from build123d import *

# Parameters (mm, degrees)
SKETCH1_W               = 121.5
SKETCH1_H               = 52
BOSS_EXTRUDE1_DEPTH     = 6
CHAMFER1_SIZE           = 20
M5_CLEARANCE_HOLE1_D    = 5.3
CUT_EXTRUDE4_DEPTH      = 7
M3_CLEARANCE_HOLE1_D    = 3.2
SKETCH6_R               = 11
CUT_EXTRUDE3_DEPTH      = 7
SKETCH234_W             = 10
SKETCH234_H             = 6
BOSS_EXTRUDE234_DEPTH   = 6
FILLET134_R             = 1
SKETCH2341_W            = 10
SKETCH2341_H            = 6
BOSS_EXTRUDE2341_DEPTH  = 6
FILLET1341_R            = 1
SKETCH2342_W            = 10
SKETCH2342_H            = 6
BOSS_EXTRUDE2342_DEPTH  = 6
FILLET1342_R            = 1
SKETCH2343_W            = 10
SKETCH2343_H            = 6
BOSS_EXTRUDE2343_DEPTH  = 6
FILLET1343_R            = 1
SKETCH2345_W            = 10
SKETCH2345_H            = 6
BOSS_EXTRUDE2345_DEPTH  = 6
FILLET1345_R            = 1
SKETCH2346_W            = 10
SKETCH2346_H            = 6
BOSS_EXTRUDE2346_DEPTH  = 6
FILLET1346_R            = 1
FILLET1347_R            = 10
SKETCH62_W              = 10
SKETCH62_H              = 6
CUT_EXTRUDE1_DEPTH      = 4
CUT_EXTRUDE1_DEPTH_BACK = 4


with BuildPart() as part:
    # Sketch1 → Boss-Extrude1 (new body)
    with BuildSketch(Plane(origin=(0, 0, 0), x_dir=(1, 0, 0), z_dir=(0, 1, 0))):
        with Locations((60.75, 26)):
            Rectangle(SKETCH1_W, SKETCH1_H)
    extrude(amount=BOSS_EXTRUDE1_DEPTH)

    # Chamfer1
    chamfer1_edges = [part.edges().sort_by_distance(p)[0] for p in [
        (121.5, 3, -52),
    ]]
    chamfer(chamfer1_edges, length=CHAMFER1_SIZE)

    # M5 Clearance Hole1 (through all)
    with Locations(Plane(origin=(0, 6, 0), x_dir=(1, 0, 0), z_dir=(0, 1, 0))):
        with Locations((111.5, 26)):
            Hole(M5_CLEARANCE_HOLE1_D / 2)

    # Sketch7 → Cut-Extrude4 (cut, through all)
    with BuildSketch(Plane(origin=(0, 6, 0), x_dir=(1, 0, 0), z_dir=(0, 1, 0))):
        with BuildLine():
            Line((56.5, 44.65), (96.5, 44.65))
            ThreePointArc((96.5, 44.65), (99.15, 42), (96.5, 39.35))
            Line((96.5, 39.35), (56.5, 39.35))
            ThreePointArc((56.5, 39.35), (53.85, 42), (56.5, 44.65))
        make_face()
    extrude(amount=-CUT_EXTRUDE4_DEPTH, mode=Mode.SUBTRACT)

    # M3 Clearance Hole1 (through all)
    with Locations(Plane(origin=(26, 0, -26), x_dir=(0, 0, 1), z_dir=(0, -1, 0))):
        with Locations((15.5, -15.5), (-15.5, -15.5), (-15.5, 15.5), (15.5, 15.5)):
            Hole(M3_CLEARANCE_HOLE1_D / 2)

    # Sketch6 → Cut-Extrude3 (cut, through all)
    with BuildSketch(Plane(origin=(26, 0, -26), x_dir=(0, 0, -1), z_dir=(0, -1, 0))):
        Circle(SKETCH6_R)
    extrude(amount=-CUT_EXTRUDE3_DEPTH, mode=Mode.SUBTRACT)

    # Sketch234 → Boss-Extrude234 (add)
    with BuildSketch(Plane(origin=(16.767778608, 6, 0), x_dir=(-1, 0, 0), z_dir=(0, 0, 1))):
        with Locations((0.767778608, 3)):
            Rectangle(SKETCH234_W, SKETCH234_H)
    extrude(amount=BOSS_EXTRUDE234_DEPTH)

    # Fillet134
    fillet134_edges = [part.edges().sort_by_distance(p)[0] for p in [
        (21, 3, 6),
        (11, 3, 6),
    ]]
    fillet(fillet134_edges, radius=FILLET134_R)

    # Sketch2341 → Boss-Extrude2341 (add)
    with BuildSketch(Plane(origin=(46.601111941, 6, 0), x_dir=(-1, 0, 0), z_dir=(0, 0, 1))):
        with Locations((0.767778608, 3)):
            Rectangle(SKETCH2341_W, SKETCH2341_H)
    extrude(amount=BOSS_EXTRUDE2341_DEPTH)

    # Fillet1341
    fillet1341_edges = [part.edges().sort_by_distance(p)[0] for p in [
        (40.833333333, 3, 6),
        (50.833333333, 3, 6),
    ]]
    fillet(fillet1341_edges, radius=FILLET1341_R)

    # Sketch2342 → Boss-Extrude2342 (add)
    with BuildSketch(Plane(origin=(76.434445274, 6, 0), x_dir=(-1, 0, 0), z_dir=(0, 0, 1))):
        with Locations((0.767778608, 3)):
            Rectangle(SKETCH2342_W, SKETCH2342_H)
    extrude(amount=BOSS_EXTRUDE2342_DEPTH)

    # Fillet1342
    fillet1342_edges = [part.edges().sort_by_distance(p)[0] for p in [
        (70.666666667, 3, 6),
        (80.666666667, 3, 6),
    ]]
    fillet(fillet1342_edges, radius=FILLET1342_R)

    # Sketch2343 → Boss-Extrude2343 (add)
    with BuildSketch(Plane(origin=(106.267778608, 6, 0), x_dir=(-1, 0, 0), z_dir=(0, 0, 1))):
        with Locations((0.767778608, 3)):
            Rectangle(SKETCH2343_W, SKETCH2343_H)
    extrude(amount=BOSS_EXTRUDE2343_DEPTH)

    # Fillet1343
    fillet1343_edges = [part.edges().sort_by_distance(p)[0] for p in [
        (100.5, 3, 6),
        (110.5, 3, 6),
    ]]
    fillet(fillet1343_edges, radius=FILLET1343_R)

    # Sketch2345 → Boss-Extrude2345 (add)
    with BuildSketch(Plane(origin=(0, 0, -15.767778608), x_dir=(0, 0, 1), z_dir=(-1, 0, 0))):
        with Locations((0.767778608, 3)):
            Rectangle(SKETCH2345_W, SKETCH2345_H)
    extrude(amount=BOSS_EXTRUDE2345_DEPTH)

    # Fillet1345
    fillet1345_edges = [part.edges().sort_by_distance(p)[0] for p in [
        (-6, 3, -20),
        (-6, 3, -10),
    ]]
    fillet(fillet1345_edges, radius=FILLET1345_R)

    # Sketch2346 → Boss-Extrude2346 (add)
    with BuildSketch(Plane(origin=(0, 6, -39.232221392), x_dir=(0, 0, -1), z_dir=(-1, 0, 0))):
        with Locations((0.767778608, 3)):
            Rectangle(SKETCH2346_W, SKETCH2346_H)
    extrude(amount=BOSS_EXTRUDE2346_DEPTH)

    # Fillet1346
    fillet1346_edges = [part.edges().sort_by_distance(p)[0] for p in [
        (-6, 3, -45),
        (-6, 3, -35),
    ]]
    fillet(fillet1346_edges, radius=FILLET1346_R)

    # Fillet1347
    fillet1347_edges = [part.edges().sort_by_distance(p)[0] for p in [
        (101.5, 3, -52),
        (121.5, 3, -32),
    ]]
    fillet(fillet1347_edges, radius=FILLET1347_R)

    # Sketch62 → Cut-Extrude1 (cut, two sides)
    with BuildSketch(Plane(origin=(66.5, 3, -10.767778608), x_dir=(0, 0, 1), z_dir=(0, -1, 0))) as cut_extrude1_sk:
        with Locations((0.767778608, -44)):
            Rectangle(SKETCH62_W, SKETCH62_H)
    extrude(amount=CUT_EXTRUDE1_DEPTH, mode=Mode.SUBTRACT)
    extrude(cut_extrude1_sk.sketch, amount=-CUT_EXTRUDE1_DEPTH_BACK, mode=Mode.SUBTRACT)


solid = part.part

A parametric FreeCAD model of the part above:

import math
import FreeCAD as App
import Part
import Sketcher


def edges_at(feature, points):
    """Names of the edges that pass closest to the given points."""
    edges = feature.Shape.Edges
    near = lambda p: min(range(len(edges)), key=lambda i: edges[i].distToShape(Part.Vertex(*p))[0])
    return sorted({f"Edge{near(p) + 1}" for p in points})

doc = App.newDocument("Part")
body = doc.addObject("PartDesign::Body", "Body")

# Sketch on XZ plane
sketch1 = body.newObject("Sketcher::SketchObject", "Sketch")
sketch1.AttachmentSupport = (doc.getObject("XZ_Plane"), [""])
sketch1.MapMode = "FlatFace"
sketch1.addGeometry(Part.LineSegment(App.Vector(0, -52, 0), App.Vector(0, 0, 0)), False)
sketch1.addGeometry(Part.LineSegment(App.Vector(0, 0, 0), App.Vector(121.5, 0, 0)), False)
sketch1.addGeometry(Part.LineSegment(App.Vector(121.5, 0, 0), App.Vector(121.5, -52, 0)), False)
sketch1.addGeometry(Part.LineSegment(App.Vector(121.5, -52, 0), App.Vector(0, -52, 0)), False)
sketch1.addConstraint(Sketcher.Constraint("Coincident", 0, 2, 1, 1))
sketch1.addConstraint(Sketcher.Constraint("Coincident", 1, 2, 2, 1))
sketch1.addConstraint(Sketcher.Constraint("Coincident", 2, 2, 3, 1))
sketch1.addConstraint(Sketcher.Constraint("Coincident", 3, 2, 0, 1))
sketch1.addConstraint(Sketcher.Constraint("Vertical", 0))
sketch1.addConstraint(Sketcher.Constraint("Horizontal", 1))
sketch1.addConstraint(Sketcher.Constraint("Vertical", 2))
sketch1.addConstraint(Sketcher.Constraint("Horizontal", 3))
sketch1.addConstraint(Sketcher.Constraint("Coincident", 0, 2, -1, 1))
sketch1.addConstraint(Sketcher.Constraint("DistanceY", 0, 1, 0, 2, 52.0))
sketch1.addConstraint(Sketcher.Constraint("DistanceX", 1, 1, 1, 2, 121.5))
pad1 = body.newObject("PartDesign::Pad", "Pad")
pad1.Profile = sketch1
pad1.Length = 6
pad1.Reversed = True
doc.recompute()

chamfer = body.newObject("PartDesign::Chamfer", "Chamfer")
chamfer.Base = (pad1, edges_at(pad1, [(121.5, 3, -52)]))
chamfer.Size = 20

# Sketch on XZ plane
sketch2 = body.newObject("Sketcher::SketchObject", "Sketch001")
sketch2.AttachmentSupport = (doc.getObject("XZ_Plane"), [""])
sketch2.MapMode = "FlatFace"
sketch2.AttachmentOffset = App.Placement(App.Vector(0, 0, -6), App.Rotation())
sketch2.addGeometry(Part.Circle(App.Vector(111.5, -26, 0), App.Vector(0, 0, 1), 2.65), False)
sketch2.addConstraint(Sketcher.Constraint("Diameter", 0, 5.3))
sketch2.addConstraint(Sketcher.Constraint("DistanceY", 0, 3, -1, 1, 26.0))
sketch2.addConstraint(Sketcher.Constraint("DistanceX", -1, 1, 0, 3, 111.5))
doc.recompute()
hole = body.newObject("PartDesign::Hole", "Hole")
hole.Profile = sketch2
hole.ThreadType = "None"
hole.Diameter = 5.3
hole.DepthType = "ThroughAll"
hole.Reversed = True

# Sketch on XZ plane
sketch3 = body.newObject("Sketcher::SketchObject", "Sketch002")
sketch3.AttachmentSupport = (doc.getObject("XZ_Plane"), [""])
sketch3.MapMode = "FlatFace"
sketch3.AttachmentOffset = App.Placement(App.Vector(0, 0, -6), App.Rotation())
sketch3.addGeometry(Part.LineSegment(App.Vector(96.5, -44.65, 0), App.Vector(56.5, -44.65, 0)), False)
sketch3.addGeometry(Part.ArcOfCircle(Part.Circle(App.Vector(56.5, -42, 0), App.Vector(0, 0, 1), 2.65), math.radians(90), math.radians(270)), False)
sketch3.addGeometry(Part.LineSegment(App.Vector(56.5, -39.35, 0), App.Vector(96.5, -39.35, 0)), False)
sketch3.addGeometry(Part.ArcOfCircle(Part.Circle(App.Vector(96.5, -42, 0), App.Vector(0, 0, 1), 2.65), math.radians(-90), math.radians(90)), False)
sketch3.addConstraint(Sketcher.Constraint("Tangent", 0, 2, 1, 2))
sketch3.addConstraint(Sketcher.Constraint("Tangent", 1, 1, 2, 1))
sketch3.addConstraint(Sketcher.Constraint("Tangent", 2, 2, 3, 2))
sketch3.addConstraint(Sketcher.Constraint("Tangent", 3, 1, 0, 1))
sketch3.addConstraint(Sketcher.Constraint("Horizontal", 0))
sketch3.addConstraint(Sketcher.Constraint("Horizontal", 2))
sketch3.addConstraint(Sketcher.Constraint("DistanceX", 0, 2, 0, 1, 40.0))
sketch3.addConstraint(Sketcher.Constraint("Radius", 1, 2.65))
sketch3.addConstraint(Sketcher.Constraint("DistanceY", 1, 3, -1, 1, 42.0))
sketch3.addConstraint(Sketcher.Constraint("DistanceX", -1, 1, 1, 3, 56.5))
pocket1 = body.newObject("PartDesign::Pocket", "Pocket")
pocket1.Profile = sketch3
pocket1.Type = "ThroughAll"
pocket1.Reversed = True

# Sketch on XZ plane
sketch4 = body.newObject("Sketcher::SketchObject", "Sketch003")
sketch4.AttachmentSupport = (doc.getObject("XZ_Plane"), [""])
sketch4.MapMode = "FlatFace"
sketch4.addGeometry(Part.Circle(App.Vector(41.5, -10.5, 0), App.Vector(0, 0, 1), 1.6), False)
sketch4.addGeometry(Part.Circle(App.Vector(41.5, -41.5, 0), App.Vector(0, 0, 1), 1.6), False)
sketch4.addGeometry(Part.Circle(App.Vector(10.5, -41.5, 0), App.Vector(0, 0, 1), 1.6), False)
sketch4.addGeometry(Part.Circle(App.Vector(10.5, -10.5, 0), App.Vector(0, 0, 1), 1.6), False)
sketch4.addConstraint(Sketcher.Constraint("Equal", 0, 1))
sketch4.addConstraint(Sketcher.Constraint("Equal", 1, 2))
sketch4.addConstraint(Sketcher.Constraint("Equal", 2, 3))
sketch4.addConstraint(Sketcher.Constraint("Horizontal", 1, 3, 2, 3))
sketch4.addConstraint(Sketcher.Constraint("Horizontal", 0, 3, 3, 3))
sketch4.addConstraint(Sketcher.Constraint("Vertical", 0, 3, 1, 3))
sketch4.addConstraint(Sketcher.Constraint("Vertical", 2, 3, 3, 3))
sketch4.addConstraint(Sketcher.Constraint("Diameter", 0, 3.2))
sketch4.addConstraint(Sketcher.Constraint("DistanceY", 1, 3, 0, 3, 31.0))
sketch4.addConstraint(Sketcher.Constraint("DistanceX", 2, 3, 1, 3, 31.0))
sketch4.addConstraint(Sketcher.Constraint("DistanceX", -1, 1, 0, 3, 41.5))
sketch4.addConstraint(Sketcher.Constraint("DistanceY", 0, 3, -1, 1, 10.5))
doc.recompute()
hole2 = body.newObject("PartDesign::Hole", "Hole001")
hole2.Profile = sketch4
hole2.ThreadType = "None"
hole2.Diameter = 3.2
hole2.DepthType = "ThroughAll"

# Sketch on XZ plane
sketch5 = body.newObject("Sketcher::SketchObject", "Sketch004")
sketch5.AttachmentSupport = (doc.getObject("XZ_Plane"), [""])
sketch5.MapMode = "FlatFace"
sketch5.addGeometry(Part.Circle(App.Vector(26, -26, 0), App.Vector(0, 0, 1), 11), False)
sketch5.addConstraint(Sketcher.Constraint("Diameter", 0, 22.0))
sketch5.addConstraint(Sketcher.Constraint("DistanceX", -1, 1, 0, 3, 26.0))
sketch5.addConstraint(Sketcher.Constraint("DistanceY", 0, 3, -1, 1, 26.0))
pocket2 = body.newObject("PartDesign::Pocket", "Pocket001")
pocket2.Profile = sketch5
pocket2.Type = "ThroughAll"

# Sketch on XY plane
sketch6 = body.newObject("Sketcher::SketchObject", "Sketch005")
sketch6.AttachmentSupport = (doc.getObject("XY_Plane"), [""])
sketch6.MapMode = "FlatFace"
sketch6.addGeometry(Part.LineSegment(App.Vector(21, 0, 0), App.Vector(21, 6, 0)), False)
sketch6.addGeometry(Part.LineSegment(App.Vector(21, 6, 0), App.Vector(11, 6, 0)), False)
sketch6.addGeometry(Part.LineSegment(App.Vector(11, 6, 0), App.Vector(11, 0, 0)), False)
sketch6.addGeometry(Part.LineSegment(App.Vector(11, 0, 0), App.Vector(21, 0, 0)), False)
sketch6.addConstraint(Sketcher.Constraint("Coincident", 0, 2, 1, 1))
sketch6.addConstraint(Sketcher.Constraint("Coincident", 1, 2, 2, 1))
sketch6.addConstraint(Sketcher.Constraint("Coincident", 2, 2, 3, 1))
sketch6.addConstraint(Sketcher.Constraint("Coincident", 3, 2, 0, 1))
sketch6.addConstraint(Sketcher.Constraint("Vertical", 0))
sketch6.addConstraint(Sketcher.Constraint("Horizontal", 1))
sketch6.addConstraint(Sketcher.Constraint("Vertical", 2))
sketch6.addConstraint(Sketcher.Constraint("Horizontal", 3))
sketch6.addConstraint(Sketcher.Constraint("PointOnObject", 2, 2, -1))
sketch6.addConstraint(Sketcher.Constraint("DistanceX", 1, 2, 1, 1, 10.0))
sketch6.addConstraint(Sketcher.Constraint("DistanceY", 0, 1, 0, 2, 6.0))
sketch6.addConstraint(Sketcher.Constraint("DistanceX", -1, 1, 0, 2, 21.0))
pad2 = body.newObject("PartDesign::Pad", "Pad001")
pad2.Profile = sketch6
pad2.Length = 6
doc.recompute()

fillet = body.newObject("PartDesign::Fillet", "Fillet")
fillet.Base = (pad2, edges_at(pad2, [(21, 3, 6), (11, 3, 6)]))
fillet.Radius = 1

# Sketch on XY plane
sketch7 = body.newObject("Sketcher::SketchObject", "Sketch006")
sketch7.AttachmentSupport = (doc.getObject("XY_Plane"), [""])
sketch7.MapMode = "FlatFace"
sketch7.addGeometry(Part.LineSegment(App.Vector(50.833333, 0, 0), App.Vector(50.833333, 6, 0)), False)
sketch7.addGeometry(Part.LineSegment(App.Vector(50.833333, 6, 0), App.Vector(40.833333, 6, 0)), False)
sketch7.addGeometry(Part.LineSegment(App.Vector(40.833333, 6, 0), App.Vector(40.833333, 0, 0)), False)
sketch7.addGeometry(Part.LineSegment(App.Vector(40.833333, 0, 0), App.Vector(50.833333, 0, 0)), False)
sketch7.addConstraint(Sketcher.Constraint("Coincident", 0, 2, 1, 1))
sketch7.addConstraint(Sketcher.Constraint("Coincident", 1, 2, 2, 1))
sketch7.addConstraint(Sketcher.Constraint("Coincident", 2, 2, 3, 1))
sketch7.addConstraint(Sketcher.Constraint("Coincident", 3, 2, 0, 1))
sketch7.addConstraint(Sketcher.Constraint("Vertical", 0))
sketch7.addConstraint(Sketcher.Constraint("Horizontal", 1))
sketch7.addConstraint(Sketcher.Constraint("Vertical", 2))
sketch7.addConstraint(Sketcher.Constraint("Horizontal", 3))
sketch7.addConstraint(Sketcher.Constraint("PointOnObject", 2, 2, -1))
sketch7.addConstraint(Sketcher.Constraint("DistanceX", 1, 2, 1, 1, 10.0))
sketch7.addConstraint(Sketcher.Constraint("DistanceY", 0, 1, 0, 2, 6.0))
sketch7.addConstraint(Sketcher.Constraint("DistanceX", -1, 1, 0, 2, 50.833333))
pad3 = body.newObject("PartDesign::Pad", "Pad002")
pad3.Profile = sketch7
pad3.Length = 6
doc.recompute()

fillet2 = body.newObject("PartDesign::Fillet", "Fillet001")
fillet2.Base = (pad3, edges_at(pad3, [(40.833, 3, 6), (50.833, 3, 6)]))
fillet2.Radius = 1

# Sketch on XY plane
sketch8 = body.newObject("Sketcher::SketchObject", "Sketch007")
sketch8.AttachmentSupport = (doc.getObject("XY_Plane"), [""])
sketch8.MapMode = "FlatFace"
sketch8.addGeometry(Part.LineSegment(App.Vector(80.666667, 0, 0), App.Vector(80.666667, 6, 0)), False)
sketch8.addGeometry(Part.LineSegment(App.Vector(80.666667, 6, 0), App.Vector(70.666667, 6, 0)), False)
sketch8.addGeometry(Part.LineSegment(App.Vector(70.666667, 6, 0), App.Vector(70.666667, 0, 0)), False)
sketch8.addGeometry(Part.LineSegment(App.Vector(70.666667, 0, 0), App.Vector(80.666667, 0, 0)), False)
sketch8.addConstraint(Sketcher.Constraint("Coincident", 0, 2, 1, 1))
sketch8.addConstraint(Sketcher.Constraint("Coincident", 1, 2, 2, 1))
sketch8.addConstraint(Sketcher.Constraint("Coincident", 2, 2, 3, 1))
sketch8.addConstraint(Sketcher.Constraint("Coincident", 3, 2, 0, 1))
sketch8.addConstraint(Sketcher.Constraint("Vertical", 0))
sketch8.addConstraint(Sketcher.Constraint("Horizontal", 1))
sketch8.addConstraint(Sketcher.Constraint("Vertical", 2))
sketch8.addConstraint(Sketcher.Constraint("Horizontal", 3))
sketch8.addConstraint(Sketcher.Constraint("PointOnObject", 2, 2, -1))
sketch8.addConstraint(Sketcher.Constraint("DistanceX", 1, 2, 1, 1, 10.0))
sketch8.addConstraint(Sketcher.Constraint("DistanceY", 0, 1, 0, 2, 6.0))
sketch8.addConstraint(Sketcher.Constraint("DistanceX", -1, 1, 0, 2, 80.666667))
pad4 = body.newObject("PartDesign::Pad", "Pad003")
pad4.Profile = sketch8
pad4.Length = 6
doc.recompute()

fillet3 = body.newObject("PartDesign::Fillet", "Fillet002")
fillet3.Base = (pad4, edges_at(pad4, [(70.667, 3, 6), (80.667, 3, 6)]))
fillet3.Radius = 1

# Sketch on XY plane
sketch9 = body.newObject("Sketcher::SketchObject", "Sketch008")
sketch9.AttachmentSupport = (doc.getObject("XY_Plane"), [""])
sketch9.MapMode = "FlatFace"
sketch9.addGeometry(Part.LineSegment(App.Vector(110.5, 0, 0), App.Vector(110.5, 6, 0)), False)
sketch9.addGeometry(Part.LineSegment(App.Vector(110.5, 6, 0), App.Vector(100.5, 6, 0)), False)
sketch9.addGeometry(Part.LineSegment(App.Vector(100.5, 6, 0), App.Vector(100.5, 0, 0)), False)
sketch9.addGeometry(Part.LineSegment(App.Vector(100.5, 0, 0), App.Vector(110.5, 0, 0)), False)
sketch9.addConstraint(Sketcher.Constraint("Coincident", 0, 2, 1, 1))
sketch9.addConstraint(Sketcher.Constraint("Coincident", 1, 2, 2, 1))
sketch9.addConstraint(Sketcher.Constraint("Coincident", 2, 2, 3, 1))
sketch9.addConstraint(Sketcher.Constraint("Coincident", 3, 2, 0, 1))
sketch9.addConstraint(Sketcher.Constraint("Vertical", 0))
sketch9.addConstraint(Sketcher.Constraint("Horizontal", 1))
sketch9.addConstraint(Sketcher.Constraint("Vertical", 2))
sketch9.addConstraint(Sketcher.Constraint("Horizontal", 3))
sketch9.addConstraint(Sketcher.Constraint("PointOnObject", 2, 2, -1))
sketch9.addConstraint(Sketcher.Constraint("DistanceX", 1, 2, 1, 1, 10.0))
sketch9.addConstraint(Sketcher.Constraint("DistanceY", 0, 1, 0, 2, 6.0))
sketch9.addConstraint(Sketcher.Constraint("DistanceX", -1, 1, 0, 2, 110.5))
pad5 = body.newObject("PartDesign::Pad", "Pad004")
pad5.Profile = sketch9
pad5.Length = 6
doc.recompute()

fillet4 = body.newObject("PartDesign::Fillet", "Fillet003")
fillet4.Base = (pad5, edges_at(pad5, [(100.5, 3, 6), (110.5, 3, 6)]))
fillet4.Radius = 1

# Sketch on YZ plane
sketch10 = body.newObject("Sketcher::SketchObject", "Sketch009")
sketch10.AttachmentSupport = (doc.getObject("YZ_Plane"), [""])
sketch10.MapMode = "FlatFace"
sketch10.addGeometry(Part.LineSegment(App.Vector(6, -20, 0), App.Vector(0, -20, 0)), False)
sketch10.addGeometry(Part.LineSegment(App.Vector(0, -20, 0), App.Vector(0, -10, 0)), False)
sketch10.addGeometry(Part.LineSegment(App.Vector(0, -10, 0), App.Vector(6, -10, 0)), False)
sketch10.addGeometry(Part.LineSegment(App.Vector(6, -10, 0), App.Vector(6, -20, 0)), False)
sketch10.addConstraint(Sketcher.Constraint("Coincident", 0, 2, 1, 1))
sketch10.addConstraint(Sketcher.Constraint("Coincident", 1, 2, 2, 1))
sketch10.addConstraint(Sketcher.Constraint("Coincident", 2, 2, 3, 1))
sketch10.addConstraint(Sketcher.Constraint("Coincident", 3, 2, 0, 1))
sketch10.addConstraint(Sketcher.Constraint("Horizontal", 0))
sketch10.addConstraint(Sketcher.Constraint("Vertical", 1))
sketch10.addConstraint(Sketcher.Constraint("Horizontal", 2))
sketch10.addConstraint(Sketcher.Constraint("Vertical", 3))
sketch10.addConstraint(Sketcher.Constraint("PointOnObject", 0, 2, -2))
sketch10.addConstraint(Sketcher.Constraint("DistanceX", 0, 2, 0, 1, 6.0))
sketch10.addConstraint(Sketcher.Constraint("DistanceY", 1, 1, 1, 2, 10.0))
sketch10.addConstraint(Sketcher.Constraint("DistanceY", 0, 2, -1, 1, 20.0))
pad6 = body.newObject("PartDesign::Pad", "Pad005")
pad6.Profile = sketch10
pad6.Length = 6
pad6.Reversed = True
doc.recompute()

fillet5 = body.newObject("PartDesign::Fillet", "Fillet004")
fillet5.Base = (pad6, edges_at(pad6, [(-6, 3, -20), (-6, 3, -10)]))
fillet5.Radius = 1

# Sketch on YZ plane
sketch11 = body.newObject("Sketcher::SketchObject", "Sketch010")
sketch11.AttachmentSupport = (doc.getObject("YZ_Plane"), [""])
sketch11.MapMode = "FlatFace"
sketch11.addGeometry(Part.LineSegment(App.Vector(0, -35, 0), App.Vector(6, -35, 0)), False)
sketch11.addGeometry(Part.LineSegment(App.Vector(6, -35, 0), App.Vector(6, -45, 0)), False)
sketch11.addGeometry(Part.LineSegment(App.Vector(6, -45, 0), App.Vector(0, -45, 0)), False)
sketch11.addGeometry(Part.LineSegment(App.Vector(0, -45, 0), App.Vector(0, -35, 0)), False)
sketch11.addConstraint(Sketcher.Constraint("Coincident", 0, 2, 1, 1))
sketch11.addConstraint(Sketcher.Constraint("Coincident", 1, 2, 2, 1))
sketch11.addConstraint(Sketcher.Constraint("Coincident", 2, 2, 3, 1))
sketch11.addConstraint(Sketcher.Constraint("Coincident", 3, 2, 0, 1))
sketch11.addConstraint(Sketcher.Constraint("Horizontal", 0))
sketch11.addConstraint(Sketcher.Constraint("Vertical", 1))
sketch11.addConstraint(Sketcher.Constraint("Horizontal", 2))
sketch11.addConstraint(Sketcher.Constraint("Vertical", 3))
sketch11.addConstraint(Sketcher.Constraint("PointOnObject", 2, 2, -2))
sketch11.addConstraint(Sketcher.Constraint("DistanceX", 0, 1, 0, 2, 6.0))
sketch11.addConstraint(Sketcher.Constraint("DistanceY", 1, 2, 1, 1, 10.0))
sketch11.addConstraint(Sketcher.Constraint("DistanceY", 0, 2, -1, 1, 35.0))
pad7 = body.newObject("PartDesign::Pad", "Pad006")
pad7.Profile = sketch11
pad7.Length = 6
pad7.Reversed = True
doc.recompute()

fillet6 = body.newObject("PartDesign::Fillet", "Fillet005")
fillet6.Base = (pad7, edges_at(pad7, [(-6, 3, -45), (-6, 3, -35)]))
fillet6.Radius = 1
doc.recompute()

fillet7 = body.newObject("PartDesign::Fillet", "Fillet006")
fillet7.Base = (fillet6, edges_at(fillet6, [(101.5, 3, -52), (121.5, 3, -32)]))
fillet7.Radius = 10

# Sketch on XZ plane
sketch12 = body.newObject("Sketcher::SketchObject", "Sketch011")
sketch12.AttachmentSupport = (doc.getObject("XZ_Plane"), [""])
sketch12.MapMode = "FlatFace"
sketch12.AttachmentOffset = App.Placement(App.Vector(0, 0, -3), App.Rotation())
sketch12.addGeometry(Part.LineSegment(App.Vector(107.5, -15, 0), App.Vector(113.5, -15, 0)), False)
sketch12.addGeometry(Part.LineSegment(App.Vector(113.5, -15, 0), App.Vector(113.5, -5, 0)), False)
sketch12.addGeometry(Part.LineSegment(App.Vector(113.5, -5, 0), App.Vector(107.5, -5, 0)), False)
sketch12.addGeometry(Part.LineSegment(App.Vector(107.5, -5, 0), App.Vector(107.5, -15, 0)), False)
sketch12.addConstraint(Sketcher.Constraint("Coincident", 0, 2, 1, 1))
sketch12.addConstraint(Sketcher.Constraint("Coincident", 1, 2, 2, 1))
sketch12.addConstraint(Sketcher.Constraint("Coincident", 2, 2, 3, 1))
sketch12.addConstraint(Sketcher.Constraint("Coincident", 3, 2, 0, 1))
sketch12.addConstraint(Sketcher.Constraint("Horizontal", 0))
sketch12.addConstraint(Sketcher.Constraint("Vertical", 1))
sketch12.addConstraint(Sketcher.Constraint("Horizontal", 2))
sketch12.addConstraint(Sketcher.Constraint("Vertical", 3))
sketch12.addConstraint(Sketcher.Constraint("DistanceX", 0, 1, 0, 2, 6.0))
sketch12.addConstraint(Sketcher.Constraint("DistanceY", 1, 1, 1, 2, 10.0))
sketch12.addConstraint(Sketcher.Constraint("DistanceY", 0, 2, -1, 1, 15.0))
sketch12.addConstraint(Sketcher.Constraint("DistanceX", -1, 1, 0, 2, 113.5))
pocket3 = body.newObject("PartDesign::Pocket", "Pocket002")
pocket3.Profile = sketch12
pocket3.Type = "ThroughAll"
pocket3.Midplane = True

doc.recompute()
